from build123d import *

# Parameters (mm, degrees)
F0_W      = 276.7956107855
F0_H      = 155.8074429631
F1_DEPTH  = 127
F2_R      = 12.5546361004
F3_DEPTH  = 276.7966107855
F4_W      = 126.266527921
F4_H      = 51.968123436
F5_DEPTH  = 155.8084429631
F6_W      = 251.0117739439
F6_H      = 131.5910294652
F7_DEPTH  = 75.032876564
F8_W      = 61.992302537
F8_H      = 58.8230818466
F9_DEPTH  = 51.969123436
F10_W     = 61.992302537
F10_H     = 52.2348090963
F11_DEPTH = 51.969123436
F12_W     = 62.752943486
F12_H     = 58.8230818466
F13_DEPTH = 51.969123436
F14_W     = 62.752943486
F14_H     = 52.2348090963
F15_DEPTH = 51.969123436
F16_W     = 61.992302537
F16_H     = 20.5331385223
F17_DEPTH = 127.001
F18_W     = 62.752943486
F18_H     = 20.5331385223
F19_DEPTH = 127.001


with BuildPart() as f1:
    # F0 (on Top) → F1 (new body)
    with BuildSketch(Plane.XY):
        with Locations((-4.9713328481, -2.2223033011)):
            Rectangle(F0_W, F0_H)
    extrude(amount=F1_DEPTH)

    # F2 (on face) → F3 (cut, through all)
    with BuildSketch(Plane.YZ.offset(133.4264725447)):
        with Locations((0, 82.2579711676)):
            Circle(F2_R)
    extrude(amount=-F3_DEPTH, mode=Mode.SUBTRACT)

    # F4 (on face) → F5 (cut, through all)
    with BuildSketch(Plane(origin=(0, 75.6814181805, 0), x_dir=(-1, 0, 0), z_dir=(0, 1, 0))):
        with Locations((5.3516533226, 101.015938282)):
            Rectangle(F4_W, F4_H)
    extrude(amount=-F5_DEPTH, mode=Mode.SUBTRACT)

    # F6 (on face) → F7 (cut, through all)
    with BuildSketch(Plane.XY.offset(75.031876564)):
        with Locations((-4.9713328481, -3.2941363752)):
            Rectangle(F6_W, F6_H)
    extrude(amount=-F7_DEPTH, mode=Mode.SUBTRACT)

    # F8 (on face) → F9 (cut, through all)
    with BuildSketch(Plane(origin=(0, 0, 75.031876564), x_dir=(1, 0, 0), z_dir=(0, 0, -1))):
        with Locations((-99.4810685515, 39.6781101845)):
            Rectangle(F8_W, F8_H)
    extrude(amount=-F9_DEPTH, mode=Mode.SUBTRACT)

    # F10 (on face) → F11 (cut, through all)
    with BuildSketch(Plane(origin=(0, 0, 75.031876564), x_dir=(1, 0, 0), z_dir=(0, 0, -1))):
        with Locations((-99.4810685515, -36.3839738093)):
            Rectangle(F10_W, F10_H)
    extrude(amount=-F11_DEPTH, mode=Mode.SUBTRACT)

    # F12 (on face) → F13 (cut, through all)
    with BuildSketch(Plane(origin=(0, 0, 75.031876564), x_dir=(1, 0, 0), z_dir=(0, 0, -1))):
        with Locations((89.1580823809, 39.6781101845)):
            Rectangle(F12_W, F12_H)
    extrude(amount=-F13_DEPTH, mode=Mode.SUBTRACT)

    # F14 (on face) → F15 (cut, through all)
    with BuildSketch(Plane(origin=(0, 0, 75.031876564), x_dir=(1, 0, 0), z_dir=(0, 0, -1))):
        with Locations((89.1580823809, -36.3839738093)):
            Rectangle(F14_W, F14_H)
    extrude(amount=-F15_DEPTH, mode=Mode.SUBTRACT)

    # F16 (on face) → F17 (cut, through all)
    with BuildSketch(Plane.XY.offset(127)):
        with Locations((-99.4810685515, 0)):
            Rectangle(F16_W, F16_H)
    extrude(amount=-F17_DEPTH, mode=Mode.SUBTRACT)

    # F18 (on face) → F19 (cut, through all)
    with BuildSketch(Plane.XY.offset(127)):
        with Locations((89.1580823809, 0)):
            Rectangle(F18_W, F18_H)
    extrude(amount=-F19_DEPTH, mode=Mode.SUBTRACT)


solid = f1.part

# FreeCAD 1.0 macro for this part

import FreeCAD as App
import Part
import Sketcher

V = App.Vector
Q = App.Units.Quantity

doc = App.newDocument("Part")
params = doc.addObject("Spreadsheet::Sheet", "Params")
for row, (alias, value) in enumerate([
    ("pad1_length", "5 in"),
], start=1):
    params.set(f"A{row}", alias)
    params.set(f"B{row}", "=" + value)
    params.setAlias(f"B{row}", alias)

body = doc.addObject("PartDesign::Body", "Body")

# Sketch on XY plane
sketch1 = body.newObject("Sketcher::SketchObject", "Sketch")
sketch1.AttachmentSupport = (doc.getObject("XY_Plane"), [""])
sketch1.MapMode = "FlatFace"
sketch1.addGeometry(Part.LineSegment(V(-143, 76, 0), V(-143, -80, 0)), False)
sketch1.addGeometry(Part.LineSegment(V(-143, -80, 0), V(133, -80, 0)), False)
sketch1.addGeometry(Part.LineSegment(V(133, -80, 0), V(133, 76, 0)), False)
sketch1.addGeometry(Part.LineSegment(V(133, 76, 0), V(-143, 76, 0)), False)
sketch1.addConstraint(Sketcher.Constraint("Coincident", 0, 2, 1, 1))
sketch1.addConstraint(Sketcher.Constraint("Coincident", 1, 2, 2, 1))
sketch1.addConstraint(Sketcher.Constraint("Coincident", 2, 2, 3, 1))
sketch1.addConstraint(Sketcher.Constraint("Coincident", 3, 2, 0, 1))
sketch1.addConstraint(Sketcher.Constraint("Vertical", 0))
sketch1.addConstraint(Sketcher.Constraint("Horizontal", 1))
sketch1.addConstraint(Sketcher.Constraint("Vertical", 2))
sketch1.addConstraint(Sketcher.Constraint("Horizontal", 3))
sketch1.addConstraint(Sketcher.Constraint("DistanceX", 1, 1, 1, 2, 276.795611))
sketch1.addConstraint(Sketcher.Constraint("DistanceY", 0, 2, 0, 1, 155.807443))
sketch1.addConstraint(Sketcher.Constraint("DistanceX", 0, 2, -1, 1, 143.369138))
sketch1.addConstraint(Sketcher.Constraint("DistanceY", -1, 1, 2, 2, 75.681418))
pad1 = body.newObject("PartDesign::Pad", "Pad")
pad1.Profile = sketch1
pad1.setExpression("Length", "Params.pad1_length")

# Sketch on YZ plane
sketch2 = body.newObject("Sketcher::SketchObject", "Sketch001")
sketch2.AttachmentSupport = (doc.getObject("YZ_Plane"), [""])
sketch2.MapMode = "FlatFace"
sketch2.AttachmentOffset = App.Placement(V(0, 0, 133.426473), App.Rotation())
sketch2.addGeometry(Part.Circle(V(0, 82, 0), V(0, 0, 1), 13), False)
sketch2.addConstraint(Sketcher.Constraint("PointOnObject", 0, 3, -2))
sketch2.addConstraint(Sketcher.Constraint("Diameter", 0, 25.109272))
sketch2.addConstraint(Sketcher.Constraint("DistanceY", -1, 1, 0, 3, 82.257971))
pocket1 = body.newObject("PartDesign::Pocket", "Pocket")
pocket1.Profile = sketch2
pocket1.Type = "ThroughAll"

# Sketch on XZ plane
sketch3 = body.newObject("Sketcher::SketchObject", "Sketch002")
sketch3.AttachmentSupport = (doc.getObject("XZ_Plane"), [""])
sketch3.MapMode = "FlatFace"
sketch3.AttachmentOffset = App.Placement(V(0, 0, -75.681418), App.Rotation())
sketch3.addGeometry(Part.LineSegment(V(58, 127, 0), V(58, 75, 0)), False)
sketch3.addGeometry(Part.LineSegment(V(58, 75, 0), V(-68, 75, 0)), False)
sketch3.addGeometry(Part.LineSegment(V(-68, 75, 0), V(-68, 127, 0)), False)
sketch3.addGeometry(Part.LineSegment(V(-68, 127, 0), V(58, 127, 0)), False)
sketch3.addConstraint(Sketcher.Constraint("Coincident", 0, 2, 1, 1))
sketch3.addConstraint(Sketcher.Constraint("Coincident", 1, 2, 2, 1))
sketch3.addConstraint(Sketcher.Constraint("Coincident", 2, 2, 3, 1))
sketch3.addConstraint(Sketcher.Constraint("Coincident", 3, 2, 0, 1))
sketch3.addConstraint(Sketcher.Constraint("Vertical", 0))
sketch3.addConstraint(Sketcher.Constraint("Horizontal", 1))
sketch3.addConstraint(Sketcher.Constraint("Vertical", 2))
sketch3.addConstraint(Sketcher.Constraint("Horizontal", 3))
sketch3.addConstraint(Sketcher.Constraint("DistanceY", -1, 1, 2, 2, Q("5 in")))
sketch3.addConstraint(Sketcher.Constraint("DistanceX", 1, 2, 1, 1, 126.266528))
sketch3.addConstraint(Sketcher.Constraint("DistanceY", 0, 2, 0, 1, 51.968123))
sketch3.addConstraint(Sketcher.Constraint("DistanceX", -1, 1, 0, 2, 57.781611))
pocket2 = body.newObject("PartDesign::Pocket", "Pocket001")
pocket2.Profile = sketch3
pocket2.Type = "ThroughAll"
pocket2.Reversed = True

# Sketch on XY plane
sketch4 = body.newObject("Sketcher::SketchObject", "Sketch003")
sketch4.AttachmentSupport = (doc.getObject("XY_Plane"), [""])
sketch4.MapMode = "FlatFace"
sketch4.AttachmentOffset = App.Placement(V(0, 0, 75.031877), App.Rotation())
sketch4.addGeometry(Part.LineSegment(V(-130, 63, 0), V(-130, -69, 0)), False)
sketch4.addGeometry(Part.LineSegment(V(-130, -69, 0), V(121, -69, 0)), False)
sketch4.addGeometry(Part.LineSegment(V(121, -69, 0), V(121, 63, 0)), False)
sketch4.addGeometry(Part.LineSegment(V(121, 63, 0), V(-130, 63, 0)), False)
sketch4.addConstraint(Sketcher.Constraint("Coincident", 0, 2, 1, 1))
sketch4.addConstraint(Sketcher.Constraint("Coincident", 1, 2, 2, 1))
sketch4.addConstraint(Sketcher.Constraint("Coincident", 2, 2, 3, 1))
sketch4.addConstraint(Sketcher.Constraint("Coincident", 3, 2, 0, 1))
sketch4.addConstraint(Sketcher.Constraint("Vertical", 0))
sketch4.addConstraint(Sketcher.Constraint("Horizontal", 1))
sketch4.addConstraint(Sketcher.Constraint("Vertical", 2))
sketch4.addConstraint(Sketcher.Constraint("Horizontal", 3))
sketch4.addConstraint(Sketcher.Constraint("DistanceY", 0, 2, 0, 1, 131.591029))
sketch4.addConstraint(Sketcher.Constraint("DistanceX", 1, 1, 1, 2, 251.011774))
sketch4.addConstraint(Sketcher.Constraint("DistanceX", 0, 2, -1, 1, 130.47722))
sketch4.addConstraint(Sketcher.Constraint("DistanceY", 0, 2, -1, 1, 69.089651))
pocket3 = body.newObject("PartDesign::Pocket", "Pocket002")
pocket3.Profile = sketch4
pocket3.Type = "ThroughAll"

# Sketch on XY plane
sketch5 = body.newObject("Sketcher::SketchObject", "Sketch004")
sketch5.AttachmentSupport = (doc.getObject("XY_Plane"), [""])
sketch5.MapMode = "FlatFace"
sketch5.AttachmentOffset = App.Placement(V(0, 0, 75.031877), App.Rotation())
sketch5.addGeometry(Part.LineSegment(V(-130, -69, 0), V(-130, -10, 0)), False)
sketch5.addGeometry(Part.LineSegment(V(-130, -10, 0), V(-68, -10, 0)), False)
sketch5.addGeometry(Part.LineSegment(V(-68, -10, 0), V(-68, -69, 0)), False)
sketch5.addGeometry(Part.LineSegment(V(-68, -69, 0), V(-130, -69, 0)), False)
sketch5.addConstraint(Sketcher.Constraint("Coincident", 0, 2, 1, 1))
sketch5.addConstraint(Sketcher.Constraint("Coincident", 1, 2, 2, 1))
sketch5.addConstraint(Sketcher.Constraint("Coincident", 2, 2, 3, 1))
sketch5.addConstraint(Sketcher.Constraint("Coincident", 3, 2, 0, 1))
sketch5.addConstraint(Sketcher.Constraint("Vertical", 0))
sketch5.addConstraint(Sketcher.Constraint("Horizontal", 1))
sketch5.addConstraint(Sketcher.Constraint("Vertical", 2))
sketch5.addConstraint(Sketcher.Constraint("Horizontal", 3))
sketch5.addConstraint(Sketcher.Constraint("DistanceY", 0, 1, 0, 2, 58.823082))
sketch5.addConstraint(Sketcher.Constraint("DistanceX", 1, 1, 1, 2, 61.992303))
sketch5.addConstraint(Sketcher.Constraint("DistanceX", 0, 2, -1, 1, 130.47722))
sketch5.addConstraint(Sketcher.Constraint("DistanceY", 0, 2, -1, 1, 10.266569))
pocket4 = body.newObject("PartDesign::Pocket", "Pocket003")
pocket4.Profile = sketch5
pocket4.Type = "ThroughAll"
pocket4.Reversed = True

# Sketch on XY plane
sketch6 = body.newObject("Sketcher::SketchObject", "Sketch005")
sketch6.AttachmentSupport = (doc.getObject("XY_Plane"), [""])
sketch6.MapMode = "FlatFace"
sketch6.AttachmentOffset = App.Placement(V(0, 0, 75.031877), App.Rotation())
sketch6.addGeometry(Part.LineSegment(V(-130, 10, 0), V(-130, 63, 0)), False)
sketch6.addGeometry(Part.LineSegment(V(-130, 63, 0), V(-68, 63, 0)), False)
sketch6.addGeometry(Part.LineSegment(V(-68, 63, 0), V(-68, 10, 0)), False)
sketch6.addGeometry(Part.LineSegment(V(-68, 10, 0), V(-130, 10, 0)), False)
sketch6.addConstraint(Sketcher.Constraint("Coincident", 0, 2, 1, 1))
sketch6.addConstraint(Sketcher.Constraint("Coincident", 1, 2, 2, 1))
sketch6.addConstraint(Sketcher.Constraint("Coincident", 2, 2, 3, 1))
sketch6.addConstraint(Sketcher.Constraint("Coincident", 3, 2, 0, 1))
sketch6.addConstraint(Sketcher.Constraint("Vertical", 0))
sketch6.addConstraint(Sketcher.Constraint("Horizontal", 1))
sketch6.addConstraint(Sketcher.Constraint("Vertical", 2))
sketch6.addConstraint(Sketcher.Constraint("Horizontal", 3))
sketch6.addConstraint(Sketcher.Constraint("DistanceY", 0, 1, 0, 2, 52.234809))
sketch6.addConstraint(Sketcher.Constraint("DistanceX", 1, 1, 1, 2, 61.992303))
sketch6.addConstraint(Sketcher.Constraint("DistanceX", 0, 2, -1, 1, 130.47722))
sketch6.addConstraint(Sketcher.Constraint("DistanceY", -1, 1, 0, 2, 62.501378))
pocket5 = body.newObject("PartDesign::Pocket", "Pocket004")
pocket5.Profile = sketch6
pocket5.Type = "ThroughAll"
pocket5.Reversed = True

# Sketch on XY plane
sketch7 = body.newObject("Sketcher::SketchObject", "Sketch006")
sketch7.AttachmentSupport = (doc.getObject("XY_Plane"), [""])
sketch7.MapMode = "FlatFace"
sketch7.AttachmentOffset = App.Placement(V(0, 0, 75.031877), App.Rotation())
sketch7.addGeometry(Part.LineSegment(V(58, -69, 0), V(58, -10, 0)), False)
sketch7.addGeometry(Part.LineSegment(V(58, -10, 0), V(121, -10, 0)), False)
sketch7.addGeometry(Part.LineSegment(V(121, -10, 0), V(121, -69, 0)), False)
sketch7.addGeometry(Part.LineSegment(V(121, -69, 0), V(58, -69, 0)), False)
sketch7.addConstraint(Sketcher.Constraint("Coincident", 0, 2, 1, 1))
sketch7.addConstraint(Sketcher.Constraint("Coincident", 1, 2, 2, 1))
sketch7.addConstraint(Sketcher.Constraint("Coincident", 2, 2, 3, 1))
sketch7.addConstraint(Sketcher.Constraint("Coincident", 3, 2, 0, 1))
sketch7.addConstraint(Sketcher.Constraint("Vertical", 0))
sketch7.addConstraint(Sketcher.Constraint("Horizontal", 1))
sketch7.addConstraint(Sketcher.Constraint("Vertical", 2))
sketch7.addConstraint(Sketcher.Constraint("Horizontal", 3))
sketch7.addConstraint(Sketcher.Constraint("DistanceY", 0, 1, 0, 2, 58.823082))
sketch7.addConstraint(Sketcher.Constraint("DistanceX", 1, 1, 1, 2, 62.752943))
sketch7.addConstraint(Sketcher.Constraint("DistanceX", -1, 1, 0, 2, 57.781611))
sketch7.addConstraint(Sketcher.Constraint("DistanceY", 0, 2, -1, 1, 10.266569))
pocket6 = body.newObject("PartDesign::Pocket", "Pocket005")
pocket6.Profile = sketch7
pocket6.Type = "ThroughAll"
pocket6.Reversed = True

# Sketch on XY plane
sketch8 = body.newObject("Sketcher::SketchObject", "Sketch007")
sketch8.AttachmentSupport = (doc.getObject("XY_Plane"), [""])
sketch8.MapMode = "FlatFace"
sketch8.AttachmentOffset = App.Placement(V(0, 0, 75.031877), App.Rotation())
sketch8.addGeometry(Part.LineSegment(V(58, 10, 0), V(58, 63, 0)), False)
sketch8.addGeometry(Part.LineSegment(V(58, 63, 0), V(121, 63, 0)), False)
sketch8.addGeometry(Part.LineSegment(V(121, 63, 0), V(121, 10, 0)), False)
sketch8.addGeometry(Part.LineSegment(V(121, 10, 0), V(58, 10, 0)), False)
sketch8.addConstraint(Sketcher.Constraint("Coincident", 0, 2, 1, 1))
sketch8.addConstraint(Sketcher.Constraint("Coincident", 1, 2, 2, 1))
sketch8.addConstraint(Sketcher.Constraint("Coincident", 2, 2, 3, 1))
sketch8.addConstraint(Sketcher.Constraint("Coincident", 3, 2, 0, 1))
sketch8.addConstraint(Sketcher.Constraint("Vertical", 0))
sketch8.addConstraint(Sketcher.Constraint("Horizontal", 1))
sketch8.addConstraint(Sketcher.Constraint("Vertical", 2))
sketch8.addConstraint(Sketcher.Constraint("Horizontal", 3))
sketch8.addConstraint(Sketcher.Constraint("DistanceY", 0, 1, 0, 2, 52.234809))
sketch8.addConstraint(Sketcher.Constraint("DistanceX", 1, 1, 1, 2, 62.752943))
sketch8.addConstraint(Sketcher.Constraint("DistanceX", -1, 1, 0, 2, 57.781611))
sketch8.addConstraint(Sketcher.Constraint("DistanceY", -1, 1, 0, 2, 62.501378))
pocket7 = body.newObject("PartDesign::Pocket", "Pocket006")
pocket7.Profile = sketch8
pocket7.Type = "ThroughAll"
pocket7.Reversed = True

# Sketch on XY plane
sketch9 = body.newObject("Sketcher::SketchObject", "Sketch008")
sketch9.AttachmentSupport = (doc.getObject("XY_Plane"), [""])
sketch9.MapMode = "FlatFace"
sketch9.AttachmentOffset = App.Placement(V(0, 0, 5 * 25.4), App.Rotation())
sketch9.addGeometry(Part.LineSegment(V(-130, 10, 0), V(-130, -10, 0)), False)
sketch9.addGeometry(Part.LineSegment(V(-130, -10, 0), V(-68, -10, 0)), False)
sketch9.addGeometry(Part.LineSegment(V(-68, -10, 0), V(-68, 10, 0)), False)
sketch9.addGeometry(Part.LineSegment(V(-68, 10, 0), V(-130, 10, 0)), False)
sketch9.addConstraint(Sketcher.Constraint("Coincident", 0, 2, 1, 1))
sketch9.addConstraint(Sketcher.Constraint("Coincident", 1, 2, 2, 1))
sketch9.addConstraint(Sketcher.Constraint("Coincident", 2, 2, 3, 1))
sketch9.addConstraint(Sketcher.Constraint("Coincident", 3, 2, 0, 1))
sketch9.addConstraint(Sketcher.Constraint("Vertical", 0))
sketch9.addConstraint(Sketcher.Constraint("Horizontal", 1))
sketch9.addConstraint(Sketcher.Constraint("Vertical", 2))
sketch9.addConstraint(Sketcher.Constraint("Horizontal", 3))
sketch9.addConstraint(Sketcher.Constraint("DistanceY", 0, 2, 0, 1, 20.533139))
sketch9.addConstraint(Sketcher.Constraint("DistanceX", 1, 1, 1, 2, 61.992303))
sketch9.addConstraint(Sketcher.Constraint("DistanceX", 0, 2, -1, 1, 130.47722))
sketch9.addConstraint(Sketcher.Constraint("DistanceY", 0, 2, -1, 1, 10.266569))
pocket8 = body.newObject("PartDesign::Pocket", "Pocket007")
pocket8.Profile = sketch9
pocket8.Type = "ThroughAll"

# Sketch on XY plane
sketch10 = body.newObject("Sketcher::SketchObject", "Sketch009")
sketch10.AttachmentSupport = (doc.getObject("XY_Plane"), [""])
sketch10.MapMode = "FlatFace"
sketch10.AttachmentOffset = App.Placement(V(0, 0, 5 * 25.4), App.Rotation())
sketch10.addGeometry(Part.LineSegment(V(58, 10, 0), V(58, -10, 0)), False)
sketch10.addGeometry(Part.LineSegment(V(58, -10, 0), V(121, -10, 0)), False)
sketch10.addGeometry(Part.LineSegment(V(121, -10, 0), V(121, 10, 0)), False)
sketch10.addGeometry(Part.LineSegment(V(121, 10, 0), V(58, 10, 0)), False)
sketch10.addConstraint(Sketcher.Constraint("Coincident", 0, 2, 1, 1))
sketch10.addConstraint(Sketcher.Constraint("Coincident", 1, 2, 2, 1))
sketch10.addConstraint(Sketcher.Constraint("Coincident", 2, 2, 3, 1))
sketch10.addConstraint(Sketcher.Constraint("Coincident", 3, 2, 0, 1))
sketch10.addConstraint(Sketcher.Constraint("Vertical", 0))
sketch10.addConstraint(Sketcher.Constraint("Horizontal", 1))
sketch10.addConstraint(Sketcher.Constraint("Vertical", 2))
sketch10.addConstraint(Sketcher.Constraint("Horizontal", 3))
sketch10.addConstraint(Sketcher.Constraint("DistanceY", 0, 2, 0, 1, 20.533139))
sketch10.addConstraint(Sketcher.Constraint("DistanceX", 1, 1, 1, 2, 62.752943))
sketch10.addConstraint(Sketcher.Constraint("DistanceX", -1, 1, 0, 2, 57.781611))
sketch10.addConstraint(Sketcher.Constraint("DistanceY", 0, 2, -1, 1, 10.266569))
pocket9 = body.newObject("PartDesign::Pocket", "Pocket008")
pocket9.Profile = sketch10
pocket9.Type = "ThroughAll"

doc.recompute()
